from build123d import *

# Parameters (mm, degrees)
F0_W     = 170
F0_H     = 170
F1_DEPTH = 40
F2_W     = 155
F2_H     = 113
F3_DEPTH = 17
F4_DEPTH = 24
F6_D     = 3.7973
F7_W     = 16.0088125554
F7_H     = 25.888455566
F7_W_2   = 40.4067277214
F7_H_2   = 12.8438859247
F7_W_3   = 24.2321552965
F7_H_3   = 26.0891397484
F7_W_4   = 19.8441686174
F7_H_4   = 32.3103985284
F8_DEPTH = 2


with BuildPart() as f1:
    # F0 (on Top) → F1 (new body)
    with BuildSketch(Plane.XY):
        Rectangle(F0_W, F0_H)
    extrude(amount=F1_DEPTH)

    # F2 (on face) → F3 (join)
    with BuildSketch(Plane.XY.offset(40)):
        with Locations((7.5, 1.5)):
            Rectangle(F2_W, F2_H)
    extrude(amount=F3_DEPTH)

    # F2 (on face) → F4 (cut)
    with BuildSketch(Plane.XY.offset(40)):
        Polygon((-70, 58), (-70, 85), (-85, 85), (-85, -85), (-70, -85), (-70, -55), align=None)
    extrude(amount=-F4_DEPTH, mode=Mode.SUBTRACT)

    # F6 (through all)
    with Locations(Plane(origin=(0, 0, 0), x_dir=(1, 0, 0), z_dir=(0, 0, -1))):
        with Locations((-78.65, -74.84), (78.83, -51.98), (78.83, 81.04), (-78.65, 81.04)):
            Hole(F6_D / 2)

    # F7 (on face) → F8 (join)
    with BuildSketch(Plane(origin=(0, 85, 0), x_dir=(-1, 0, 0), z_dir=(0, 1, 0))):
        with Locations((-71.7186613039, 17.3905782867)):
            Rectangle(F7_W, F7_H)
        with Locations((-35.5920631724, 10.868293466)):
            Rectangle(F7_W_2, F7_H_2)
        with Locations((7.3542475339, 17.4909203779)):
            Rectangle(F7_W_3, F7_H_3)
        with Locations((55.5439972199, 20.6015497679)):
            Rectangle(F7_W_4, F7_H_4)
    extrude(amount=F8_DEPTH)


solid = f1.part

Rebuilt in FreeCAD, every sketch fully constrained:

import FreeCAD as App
import Part
import Sketcher

V = App.Vector


def add_polygon(sketch, points):
    """Adds a closed chain of lines whose ends are joined by coincident constraints."""
    first, n = sketch.GeometryCount, len(points)
    for a, b in zip(points, points[1:] + points[:1]):
        sketch.addGeometry(Part.LineSegment(App.Vector(*a, 0), App.Vector(*b, 0)), False)
    for i in range(n):
        sketch.addConstraint(Sketcher.Constraint("Coincident", first + i, 2, first + (i + 1) % n, 1))

doc = App.newDocument("Part")
params = doc.addObject("Spreadsheet::Sheet", "Params")
for row, (alias, value) in enumerate([
    ("sketch1_width", "170 mm"),
    ("pad1_length", "40 mm"),
    ("sketch2_width", "155 mm"),
    ("sketch2_height", "113 mm"),
    ("pad2_length", "17 mm"),
    ("sketch3_width", "15 mm"),
    ("sketch3_height", "170 mm"),
    ("pocket1_length", "24 mm"),
    ("hole_diameter", "3.7973 mm"),
    ("pad3_length", "2 mm"),
], start=1):
    params.set(f"A{row}", alias)
    params.set(f"B{row}", "=" + value)
    params.setAlias(f"B{row}", alias)

body = doc.addObject("PartDesign::Body", "Body")

# Sketch on XY plane
sketch1 = body.newObject("Sketcher::SketchObject", "Sketch")
sketch1.AttachmentSupport = (doc.getObject("XY_Plane"), [""])
sketch1.MapMode = "FlatFace"
add_polygon(sketch1, [(-85, 85), (-85, -85), (85, -85), (85, 85)])  # lines 0-3
sketch1.addConstraint([
    Sketcher.Constraint("Vertical", 0),
    Sketcher.Constraint("Horizontal", 1),
    Sketcher.Constraint("Vertical", 2),
    Sketcher.Constraint("Horizontal", 3),
    Sketcher.Constraint("Symmetric", 0, 2, 2, 2, -1, 1),
    Sketcher.Constraint("Equal", 3, 0),
    Sketcher.Constraint("DistanceX", 1, 1, 1, 2, 170.0),
])
sketch1.setExpression("Constraints[10]", "Params.sketch1_width")
pad1 = body.newObject("PartDesign::Pad", "Pad")
pad1.Profile = sketch1
pad1.setExpression("Length", "Params.pad1_length")

# Sketch on XY plane
sketch2 = body.newObject("Sketcher::SketchObject", "Sketch001")
sketch2.AttachmentSupport = (doc.getObject("XY_Plane"), [""])
sketch2.MapMode = "FlatFace"
sketch2.AttachmentOffset = App.Placement(V(0, 0, 40), App.Rotation())
add_polygon(sketch2, [(-70, 58), (-70, -55), (85, -55), (85, 58)])  # lines 0-3
sketch2.addConstraint([
    Sketcher.Constraint("Vertical", 0),
    Sketcher.Constraint("Horizontal", 1),
    Sketcher.Constraint("Vertical", 2),
    Sketcher.Constraint("Horizontal", 3),
    Sketcher.Constraint("DistanceX", 1, 1, 1, 2, 155.0),
    Sketcher.Constraint("DistanceY", 0, 2, 0, 1, 113.0),
    Sketcher.Constraint("DistanceX", 0, 2, -1, 1, 70.0),
    Sketcher.Constraint("DistanceY", 0, 2, -1, 1, 55.0),
])
sketch2.setExpression("Constraints[8]", "Params.sketch2_width")
sketch2.setExpression("Constraints[9]", "Params.sketch2_height")
pad2 = body.newObject("PartDesign::Pad", "Pad001")
pad2.Profile = sketch2
pad2.setExpression("Length", "Params.pad2_length")

# Sketch on XY plane
sketch3 = body.newObject("Sketcher::SketchObject", "Sketch002")
sketch3.AttachmentSupport = (doc.getObject("XY_Plane"), [""])
sketch3.MapMode = "FlatFace"
sketch3.AttachmentOffset = App.Placement(V(0, 0, 40), App.Rotation())
add_polygon(sketch3, [(-70, 85), (-85, 85), (-85, -85), (-70, -85)])  # lines 0-3
sketch3.addConstraint([
    Sketcher.Constraint("Horizontal", 0),
    Sketcher.Constraint("Vertical", 1),
    Sketcher.Constraint("Horizontal", 2),
    Sketcher.Constraint("Vertical", 3),
    Sketcher.Constraint("DistanceX", 0, 2, 0, 1, 15.0),
    Sketcher.Constraint("DistanceY", 1, 2, 1, 1, 170.0),
    Sketcher.Constraint("DistanceX", 0, 2, -1, 1, 85.0),
    Sketcher.Constraint("DistanceY", -1, 1, 0, 2, 85.0),
])
sketch3.setExpression("Constraints[8]", "Params.sketch3_width")
sketch3.setExpression("Constraints[9]", "Params.sketch3_height")
pocket1 = body.newObject("PartDesign::Pocket", "Pocket")
pocket1.Profile = sketch3
pocket1.setExpression("Length", "Params.pocket1_length")

# Sketch on XY plane
sketch4 = body.newObject("Sketcher::SketchObject", "Sketch003")
sketch4.AttachmentSupport = (doc.getObject("XY_Plane"), [""])
sketch4.MapMode = "FlatFace"
sketch4.addGeometry([
    Part.Circle(V(-78.7, 74.8, 0), V(0, 0, 1), 1.9),
    Part.Circle(V(78.8, 52, 0), V(0, 0, 1), 1.9),
    Part.Circle(V(78.8, -81, 0), V(0, 0, 1), 1.9),
    Part.Circle(V(-78.7, -81, 0), V(0, 0, 1), 1.9),
], False)
sketch4.addConstraint([
    Sketcher.Constraint("Equal", 0, 1),
    Sketcher.Constraint("Equal", 1, 2),
    Sketcher.Constraint("Equal", 2, 3),
    Sketcher.Constraint("Horizontal", 2, 3, 3, 3),
    Sketcher.Constraint("Vertical", 1, 3, 2, 3),
    Sketcher.Constraint("Vertical", 0, 3, 3, 3),
    Sketcher.Constraint("Diameter", 0, 3.7973),
    Sketcher.Constraint("DistanceX", 0, 3, -1, 1, 78.65),
    Sketcher.Constraint("DistanceY", -1, 1, 0, 3, 74.84),
    Sketcher.Constraint("DistanceX", -1, 1, 1, 3, 78.83),
    Sketcher.Constraint("DistanceY", -1, 1, 1, 3, 51.98),
    Sketcher.Constraint("DistanceY", 2, 3, -1, 1, 81.04),
])
doc.recompute()
hole = body.newObject("PartDesign::Hole", "Hole")
hole.Profile = sketch4
hole.ThreadType = "None"
hole.setExpression("Diameter", "Params.hole_diameter")
hole.DepthType = "ThroughAll"
hole.Reversed = True

# Sketch on XZ plane
sketch5 = body.newObject("Sketcher::SketchObject", "Sketch004")
sketch5.AttachmentSupport = (doc.getObject("XZ_Plane"), [""])
sketch5.MapMode = "FlatFace"
sketch5.AttachmentOffset = App.Placement(V(0, 0, -85), App.Rotation())
add_polygon(sketch5, [(80, 30), (80, 4), (64, 4), (64, 30)])  # lines 0-3
add_polygon(sketch5, [(56, 17), (56, 4), (15, 4), (15, 17)])  # lines 4-7
add_polygon(sketch5, [(5, 31), (5, 4), (-19, 4), (-19, 31)])  # lines 8-11
add_polygon(sketch5, [(-46, 37), (-46, 4), (-65, 4), (-65, 37)])  # lines 12-15
sketch5.addConstraint([
    Sketcher.Constraint("Vertical", 0),
    Sketcher.Constraint("Horizontal", 1),
    Sketcher.Constraint("Vertical", 2),
    Sketcher.Constraint("Horizontal", 3),
    Sketcher.Constraint("Vertical", 4),
    Sketcher.Constraint("Horizontal", 5),
    Sketcher.Constraint("Vertical", 6),
    Sketcher.Constraint("Horizontal", 7),
    Sketcher.Constraint("Vertical", 8),
    Sketcher.Constraint("Horizontal", 9),
    Sketcher.Constraint("Vertical", 10),
    Sketcher.Constraint("Horizontal", 11),
    Sketcher.Constraint("Vertical", 12),
    Sketcher.Constraint("Horizontal", 13),
    Sketcher.Constraint("Vertical", 14),
    Sketcher.Constraint("Horizontal", 15),
    Sketcher.Constraint("Horizontal", 1, 2, 4, 2),
    Sketcher.Constraint("Horizontal", 5, 2, 8, 2),
    Sketcher.Constraint("Horizontal", 9, 2, 12, 2),
    Sketcher.Constraint("DistanceY", 12, 2, 12, 1, 32.310399),
    Sketcher.Constraint("DistanceX", 13, 2, 13, 1, 19.844169),
    Sketcher.Constraint("DistanceY", 8, 2, 8, 1, 26.08914),
    Sketcher.Constraint("DistanceX", -1, 1, 5, 2, 15.388699),
    Sketcher.Constraint("DistanceX", 1, 2, 1, 1, 16.008813),
    Sketcher.Constraint("DistanceX", 5, 2, 5, 1, 40.406728),
    Sketcher.Constraint("DistanceX", 9, 2, 9, 1, 24.232155),
    Sketcher.Constraint("DistanceY", 0, 2, 0, 1, 25.888456),
    Sketcher.Constraint("DistanceY", 4, 2, 4, 1, 12.843886),
    Sketcher.Constraint("DistanceY", -1, 1, 0, 2, 4.446351),
    Sketcher.Constraint("DistanceX", -1, 1, 8, 2, 4.76183),
    Sketcher.Constraint("DistanceX", 13, 2, -1, 1, 65.466082),
    Sketcher.Constraint("DistanceX", 4, 2, 0, 2, 23.927641),
])
pad3 = body.newObject("PartDesign::Pad", "Pad002")
pad3.Profile = sketch5
pad3.setExpression("Length", "Params.pad3_length")
pad3.Reversed = True

doc.recompute()
